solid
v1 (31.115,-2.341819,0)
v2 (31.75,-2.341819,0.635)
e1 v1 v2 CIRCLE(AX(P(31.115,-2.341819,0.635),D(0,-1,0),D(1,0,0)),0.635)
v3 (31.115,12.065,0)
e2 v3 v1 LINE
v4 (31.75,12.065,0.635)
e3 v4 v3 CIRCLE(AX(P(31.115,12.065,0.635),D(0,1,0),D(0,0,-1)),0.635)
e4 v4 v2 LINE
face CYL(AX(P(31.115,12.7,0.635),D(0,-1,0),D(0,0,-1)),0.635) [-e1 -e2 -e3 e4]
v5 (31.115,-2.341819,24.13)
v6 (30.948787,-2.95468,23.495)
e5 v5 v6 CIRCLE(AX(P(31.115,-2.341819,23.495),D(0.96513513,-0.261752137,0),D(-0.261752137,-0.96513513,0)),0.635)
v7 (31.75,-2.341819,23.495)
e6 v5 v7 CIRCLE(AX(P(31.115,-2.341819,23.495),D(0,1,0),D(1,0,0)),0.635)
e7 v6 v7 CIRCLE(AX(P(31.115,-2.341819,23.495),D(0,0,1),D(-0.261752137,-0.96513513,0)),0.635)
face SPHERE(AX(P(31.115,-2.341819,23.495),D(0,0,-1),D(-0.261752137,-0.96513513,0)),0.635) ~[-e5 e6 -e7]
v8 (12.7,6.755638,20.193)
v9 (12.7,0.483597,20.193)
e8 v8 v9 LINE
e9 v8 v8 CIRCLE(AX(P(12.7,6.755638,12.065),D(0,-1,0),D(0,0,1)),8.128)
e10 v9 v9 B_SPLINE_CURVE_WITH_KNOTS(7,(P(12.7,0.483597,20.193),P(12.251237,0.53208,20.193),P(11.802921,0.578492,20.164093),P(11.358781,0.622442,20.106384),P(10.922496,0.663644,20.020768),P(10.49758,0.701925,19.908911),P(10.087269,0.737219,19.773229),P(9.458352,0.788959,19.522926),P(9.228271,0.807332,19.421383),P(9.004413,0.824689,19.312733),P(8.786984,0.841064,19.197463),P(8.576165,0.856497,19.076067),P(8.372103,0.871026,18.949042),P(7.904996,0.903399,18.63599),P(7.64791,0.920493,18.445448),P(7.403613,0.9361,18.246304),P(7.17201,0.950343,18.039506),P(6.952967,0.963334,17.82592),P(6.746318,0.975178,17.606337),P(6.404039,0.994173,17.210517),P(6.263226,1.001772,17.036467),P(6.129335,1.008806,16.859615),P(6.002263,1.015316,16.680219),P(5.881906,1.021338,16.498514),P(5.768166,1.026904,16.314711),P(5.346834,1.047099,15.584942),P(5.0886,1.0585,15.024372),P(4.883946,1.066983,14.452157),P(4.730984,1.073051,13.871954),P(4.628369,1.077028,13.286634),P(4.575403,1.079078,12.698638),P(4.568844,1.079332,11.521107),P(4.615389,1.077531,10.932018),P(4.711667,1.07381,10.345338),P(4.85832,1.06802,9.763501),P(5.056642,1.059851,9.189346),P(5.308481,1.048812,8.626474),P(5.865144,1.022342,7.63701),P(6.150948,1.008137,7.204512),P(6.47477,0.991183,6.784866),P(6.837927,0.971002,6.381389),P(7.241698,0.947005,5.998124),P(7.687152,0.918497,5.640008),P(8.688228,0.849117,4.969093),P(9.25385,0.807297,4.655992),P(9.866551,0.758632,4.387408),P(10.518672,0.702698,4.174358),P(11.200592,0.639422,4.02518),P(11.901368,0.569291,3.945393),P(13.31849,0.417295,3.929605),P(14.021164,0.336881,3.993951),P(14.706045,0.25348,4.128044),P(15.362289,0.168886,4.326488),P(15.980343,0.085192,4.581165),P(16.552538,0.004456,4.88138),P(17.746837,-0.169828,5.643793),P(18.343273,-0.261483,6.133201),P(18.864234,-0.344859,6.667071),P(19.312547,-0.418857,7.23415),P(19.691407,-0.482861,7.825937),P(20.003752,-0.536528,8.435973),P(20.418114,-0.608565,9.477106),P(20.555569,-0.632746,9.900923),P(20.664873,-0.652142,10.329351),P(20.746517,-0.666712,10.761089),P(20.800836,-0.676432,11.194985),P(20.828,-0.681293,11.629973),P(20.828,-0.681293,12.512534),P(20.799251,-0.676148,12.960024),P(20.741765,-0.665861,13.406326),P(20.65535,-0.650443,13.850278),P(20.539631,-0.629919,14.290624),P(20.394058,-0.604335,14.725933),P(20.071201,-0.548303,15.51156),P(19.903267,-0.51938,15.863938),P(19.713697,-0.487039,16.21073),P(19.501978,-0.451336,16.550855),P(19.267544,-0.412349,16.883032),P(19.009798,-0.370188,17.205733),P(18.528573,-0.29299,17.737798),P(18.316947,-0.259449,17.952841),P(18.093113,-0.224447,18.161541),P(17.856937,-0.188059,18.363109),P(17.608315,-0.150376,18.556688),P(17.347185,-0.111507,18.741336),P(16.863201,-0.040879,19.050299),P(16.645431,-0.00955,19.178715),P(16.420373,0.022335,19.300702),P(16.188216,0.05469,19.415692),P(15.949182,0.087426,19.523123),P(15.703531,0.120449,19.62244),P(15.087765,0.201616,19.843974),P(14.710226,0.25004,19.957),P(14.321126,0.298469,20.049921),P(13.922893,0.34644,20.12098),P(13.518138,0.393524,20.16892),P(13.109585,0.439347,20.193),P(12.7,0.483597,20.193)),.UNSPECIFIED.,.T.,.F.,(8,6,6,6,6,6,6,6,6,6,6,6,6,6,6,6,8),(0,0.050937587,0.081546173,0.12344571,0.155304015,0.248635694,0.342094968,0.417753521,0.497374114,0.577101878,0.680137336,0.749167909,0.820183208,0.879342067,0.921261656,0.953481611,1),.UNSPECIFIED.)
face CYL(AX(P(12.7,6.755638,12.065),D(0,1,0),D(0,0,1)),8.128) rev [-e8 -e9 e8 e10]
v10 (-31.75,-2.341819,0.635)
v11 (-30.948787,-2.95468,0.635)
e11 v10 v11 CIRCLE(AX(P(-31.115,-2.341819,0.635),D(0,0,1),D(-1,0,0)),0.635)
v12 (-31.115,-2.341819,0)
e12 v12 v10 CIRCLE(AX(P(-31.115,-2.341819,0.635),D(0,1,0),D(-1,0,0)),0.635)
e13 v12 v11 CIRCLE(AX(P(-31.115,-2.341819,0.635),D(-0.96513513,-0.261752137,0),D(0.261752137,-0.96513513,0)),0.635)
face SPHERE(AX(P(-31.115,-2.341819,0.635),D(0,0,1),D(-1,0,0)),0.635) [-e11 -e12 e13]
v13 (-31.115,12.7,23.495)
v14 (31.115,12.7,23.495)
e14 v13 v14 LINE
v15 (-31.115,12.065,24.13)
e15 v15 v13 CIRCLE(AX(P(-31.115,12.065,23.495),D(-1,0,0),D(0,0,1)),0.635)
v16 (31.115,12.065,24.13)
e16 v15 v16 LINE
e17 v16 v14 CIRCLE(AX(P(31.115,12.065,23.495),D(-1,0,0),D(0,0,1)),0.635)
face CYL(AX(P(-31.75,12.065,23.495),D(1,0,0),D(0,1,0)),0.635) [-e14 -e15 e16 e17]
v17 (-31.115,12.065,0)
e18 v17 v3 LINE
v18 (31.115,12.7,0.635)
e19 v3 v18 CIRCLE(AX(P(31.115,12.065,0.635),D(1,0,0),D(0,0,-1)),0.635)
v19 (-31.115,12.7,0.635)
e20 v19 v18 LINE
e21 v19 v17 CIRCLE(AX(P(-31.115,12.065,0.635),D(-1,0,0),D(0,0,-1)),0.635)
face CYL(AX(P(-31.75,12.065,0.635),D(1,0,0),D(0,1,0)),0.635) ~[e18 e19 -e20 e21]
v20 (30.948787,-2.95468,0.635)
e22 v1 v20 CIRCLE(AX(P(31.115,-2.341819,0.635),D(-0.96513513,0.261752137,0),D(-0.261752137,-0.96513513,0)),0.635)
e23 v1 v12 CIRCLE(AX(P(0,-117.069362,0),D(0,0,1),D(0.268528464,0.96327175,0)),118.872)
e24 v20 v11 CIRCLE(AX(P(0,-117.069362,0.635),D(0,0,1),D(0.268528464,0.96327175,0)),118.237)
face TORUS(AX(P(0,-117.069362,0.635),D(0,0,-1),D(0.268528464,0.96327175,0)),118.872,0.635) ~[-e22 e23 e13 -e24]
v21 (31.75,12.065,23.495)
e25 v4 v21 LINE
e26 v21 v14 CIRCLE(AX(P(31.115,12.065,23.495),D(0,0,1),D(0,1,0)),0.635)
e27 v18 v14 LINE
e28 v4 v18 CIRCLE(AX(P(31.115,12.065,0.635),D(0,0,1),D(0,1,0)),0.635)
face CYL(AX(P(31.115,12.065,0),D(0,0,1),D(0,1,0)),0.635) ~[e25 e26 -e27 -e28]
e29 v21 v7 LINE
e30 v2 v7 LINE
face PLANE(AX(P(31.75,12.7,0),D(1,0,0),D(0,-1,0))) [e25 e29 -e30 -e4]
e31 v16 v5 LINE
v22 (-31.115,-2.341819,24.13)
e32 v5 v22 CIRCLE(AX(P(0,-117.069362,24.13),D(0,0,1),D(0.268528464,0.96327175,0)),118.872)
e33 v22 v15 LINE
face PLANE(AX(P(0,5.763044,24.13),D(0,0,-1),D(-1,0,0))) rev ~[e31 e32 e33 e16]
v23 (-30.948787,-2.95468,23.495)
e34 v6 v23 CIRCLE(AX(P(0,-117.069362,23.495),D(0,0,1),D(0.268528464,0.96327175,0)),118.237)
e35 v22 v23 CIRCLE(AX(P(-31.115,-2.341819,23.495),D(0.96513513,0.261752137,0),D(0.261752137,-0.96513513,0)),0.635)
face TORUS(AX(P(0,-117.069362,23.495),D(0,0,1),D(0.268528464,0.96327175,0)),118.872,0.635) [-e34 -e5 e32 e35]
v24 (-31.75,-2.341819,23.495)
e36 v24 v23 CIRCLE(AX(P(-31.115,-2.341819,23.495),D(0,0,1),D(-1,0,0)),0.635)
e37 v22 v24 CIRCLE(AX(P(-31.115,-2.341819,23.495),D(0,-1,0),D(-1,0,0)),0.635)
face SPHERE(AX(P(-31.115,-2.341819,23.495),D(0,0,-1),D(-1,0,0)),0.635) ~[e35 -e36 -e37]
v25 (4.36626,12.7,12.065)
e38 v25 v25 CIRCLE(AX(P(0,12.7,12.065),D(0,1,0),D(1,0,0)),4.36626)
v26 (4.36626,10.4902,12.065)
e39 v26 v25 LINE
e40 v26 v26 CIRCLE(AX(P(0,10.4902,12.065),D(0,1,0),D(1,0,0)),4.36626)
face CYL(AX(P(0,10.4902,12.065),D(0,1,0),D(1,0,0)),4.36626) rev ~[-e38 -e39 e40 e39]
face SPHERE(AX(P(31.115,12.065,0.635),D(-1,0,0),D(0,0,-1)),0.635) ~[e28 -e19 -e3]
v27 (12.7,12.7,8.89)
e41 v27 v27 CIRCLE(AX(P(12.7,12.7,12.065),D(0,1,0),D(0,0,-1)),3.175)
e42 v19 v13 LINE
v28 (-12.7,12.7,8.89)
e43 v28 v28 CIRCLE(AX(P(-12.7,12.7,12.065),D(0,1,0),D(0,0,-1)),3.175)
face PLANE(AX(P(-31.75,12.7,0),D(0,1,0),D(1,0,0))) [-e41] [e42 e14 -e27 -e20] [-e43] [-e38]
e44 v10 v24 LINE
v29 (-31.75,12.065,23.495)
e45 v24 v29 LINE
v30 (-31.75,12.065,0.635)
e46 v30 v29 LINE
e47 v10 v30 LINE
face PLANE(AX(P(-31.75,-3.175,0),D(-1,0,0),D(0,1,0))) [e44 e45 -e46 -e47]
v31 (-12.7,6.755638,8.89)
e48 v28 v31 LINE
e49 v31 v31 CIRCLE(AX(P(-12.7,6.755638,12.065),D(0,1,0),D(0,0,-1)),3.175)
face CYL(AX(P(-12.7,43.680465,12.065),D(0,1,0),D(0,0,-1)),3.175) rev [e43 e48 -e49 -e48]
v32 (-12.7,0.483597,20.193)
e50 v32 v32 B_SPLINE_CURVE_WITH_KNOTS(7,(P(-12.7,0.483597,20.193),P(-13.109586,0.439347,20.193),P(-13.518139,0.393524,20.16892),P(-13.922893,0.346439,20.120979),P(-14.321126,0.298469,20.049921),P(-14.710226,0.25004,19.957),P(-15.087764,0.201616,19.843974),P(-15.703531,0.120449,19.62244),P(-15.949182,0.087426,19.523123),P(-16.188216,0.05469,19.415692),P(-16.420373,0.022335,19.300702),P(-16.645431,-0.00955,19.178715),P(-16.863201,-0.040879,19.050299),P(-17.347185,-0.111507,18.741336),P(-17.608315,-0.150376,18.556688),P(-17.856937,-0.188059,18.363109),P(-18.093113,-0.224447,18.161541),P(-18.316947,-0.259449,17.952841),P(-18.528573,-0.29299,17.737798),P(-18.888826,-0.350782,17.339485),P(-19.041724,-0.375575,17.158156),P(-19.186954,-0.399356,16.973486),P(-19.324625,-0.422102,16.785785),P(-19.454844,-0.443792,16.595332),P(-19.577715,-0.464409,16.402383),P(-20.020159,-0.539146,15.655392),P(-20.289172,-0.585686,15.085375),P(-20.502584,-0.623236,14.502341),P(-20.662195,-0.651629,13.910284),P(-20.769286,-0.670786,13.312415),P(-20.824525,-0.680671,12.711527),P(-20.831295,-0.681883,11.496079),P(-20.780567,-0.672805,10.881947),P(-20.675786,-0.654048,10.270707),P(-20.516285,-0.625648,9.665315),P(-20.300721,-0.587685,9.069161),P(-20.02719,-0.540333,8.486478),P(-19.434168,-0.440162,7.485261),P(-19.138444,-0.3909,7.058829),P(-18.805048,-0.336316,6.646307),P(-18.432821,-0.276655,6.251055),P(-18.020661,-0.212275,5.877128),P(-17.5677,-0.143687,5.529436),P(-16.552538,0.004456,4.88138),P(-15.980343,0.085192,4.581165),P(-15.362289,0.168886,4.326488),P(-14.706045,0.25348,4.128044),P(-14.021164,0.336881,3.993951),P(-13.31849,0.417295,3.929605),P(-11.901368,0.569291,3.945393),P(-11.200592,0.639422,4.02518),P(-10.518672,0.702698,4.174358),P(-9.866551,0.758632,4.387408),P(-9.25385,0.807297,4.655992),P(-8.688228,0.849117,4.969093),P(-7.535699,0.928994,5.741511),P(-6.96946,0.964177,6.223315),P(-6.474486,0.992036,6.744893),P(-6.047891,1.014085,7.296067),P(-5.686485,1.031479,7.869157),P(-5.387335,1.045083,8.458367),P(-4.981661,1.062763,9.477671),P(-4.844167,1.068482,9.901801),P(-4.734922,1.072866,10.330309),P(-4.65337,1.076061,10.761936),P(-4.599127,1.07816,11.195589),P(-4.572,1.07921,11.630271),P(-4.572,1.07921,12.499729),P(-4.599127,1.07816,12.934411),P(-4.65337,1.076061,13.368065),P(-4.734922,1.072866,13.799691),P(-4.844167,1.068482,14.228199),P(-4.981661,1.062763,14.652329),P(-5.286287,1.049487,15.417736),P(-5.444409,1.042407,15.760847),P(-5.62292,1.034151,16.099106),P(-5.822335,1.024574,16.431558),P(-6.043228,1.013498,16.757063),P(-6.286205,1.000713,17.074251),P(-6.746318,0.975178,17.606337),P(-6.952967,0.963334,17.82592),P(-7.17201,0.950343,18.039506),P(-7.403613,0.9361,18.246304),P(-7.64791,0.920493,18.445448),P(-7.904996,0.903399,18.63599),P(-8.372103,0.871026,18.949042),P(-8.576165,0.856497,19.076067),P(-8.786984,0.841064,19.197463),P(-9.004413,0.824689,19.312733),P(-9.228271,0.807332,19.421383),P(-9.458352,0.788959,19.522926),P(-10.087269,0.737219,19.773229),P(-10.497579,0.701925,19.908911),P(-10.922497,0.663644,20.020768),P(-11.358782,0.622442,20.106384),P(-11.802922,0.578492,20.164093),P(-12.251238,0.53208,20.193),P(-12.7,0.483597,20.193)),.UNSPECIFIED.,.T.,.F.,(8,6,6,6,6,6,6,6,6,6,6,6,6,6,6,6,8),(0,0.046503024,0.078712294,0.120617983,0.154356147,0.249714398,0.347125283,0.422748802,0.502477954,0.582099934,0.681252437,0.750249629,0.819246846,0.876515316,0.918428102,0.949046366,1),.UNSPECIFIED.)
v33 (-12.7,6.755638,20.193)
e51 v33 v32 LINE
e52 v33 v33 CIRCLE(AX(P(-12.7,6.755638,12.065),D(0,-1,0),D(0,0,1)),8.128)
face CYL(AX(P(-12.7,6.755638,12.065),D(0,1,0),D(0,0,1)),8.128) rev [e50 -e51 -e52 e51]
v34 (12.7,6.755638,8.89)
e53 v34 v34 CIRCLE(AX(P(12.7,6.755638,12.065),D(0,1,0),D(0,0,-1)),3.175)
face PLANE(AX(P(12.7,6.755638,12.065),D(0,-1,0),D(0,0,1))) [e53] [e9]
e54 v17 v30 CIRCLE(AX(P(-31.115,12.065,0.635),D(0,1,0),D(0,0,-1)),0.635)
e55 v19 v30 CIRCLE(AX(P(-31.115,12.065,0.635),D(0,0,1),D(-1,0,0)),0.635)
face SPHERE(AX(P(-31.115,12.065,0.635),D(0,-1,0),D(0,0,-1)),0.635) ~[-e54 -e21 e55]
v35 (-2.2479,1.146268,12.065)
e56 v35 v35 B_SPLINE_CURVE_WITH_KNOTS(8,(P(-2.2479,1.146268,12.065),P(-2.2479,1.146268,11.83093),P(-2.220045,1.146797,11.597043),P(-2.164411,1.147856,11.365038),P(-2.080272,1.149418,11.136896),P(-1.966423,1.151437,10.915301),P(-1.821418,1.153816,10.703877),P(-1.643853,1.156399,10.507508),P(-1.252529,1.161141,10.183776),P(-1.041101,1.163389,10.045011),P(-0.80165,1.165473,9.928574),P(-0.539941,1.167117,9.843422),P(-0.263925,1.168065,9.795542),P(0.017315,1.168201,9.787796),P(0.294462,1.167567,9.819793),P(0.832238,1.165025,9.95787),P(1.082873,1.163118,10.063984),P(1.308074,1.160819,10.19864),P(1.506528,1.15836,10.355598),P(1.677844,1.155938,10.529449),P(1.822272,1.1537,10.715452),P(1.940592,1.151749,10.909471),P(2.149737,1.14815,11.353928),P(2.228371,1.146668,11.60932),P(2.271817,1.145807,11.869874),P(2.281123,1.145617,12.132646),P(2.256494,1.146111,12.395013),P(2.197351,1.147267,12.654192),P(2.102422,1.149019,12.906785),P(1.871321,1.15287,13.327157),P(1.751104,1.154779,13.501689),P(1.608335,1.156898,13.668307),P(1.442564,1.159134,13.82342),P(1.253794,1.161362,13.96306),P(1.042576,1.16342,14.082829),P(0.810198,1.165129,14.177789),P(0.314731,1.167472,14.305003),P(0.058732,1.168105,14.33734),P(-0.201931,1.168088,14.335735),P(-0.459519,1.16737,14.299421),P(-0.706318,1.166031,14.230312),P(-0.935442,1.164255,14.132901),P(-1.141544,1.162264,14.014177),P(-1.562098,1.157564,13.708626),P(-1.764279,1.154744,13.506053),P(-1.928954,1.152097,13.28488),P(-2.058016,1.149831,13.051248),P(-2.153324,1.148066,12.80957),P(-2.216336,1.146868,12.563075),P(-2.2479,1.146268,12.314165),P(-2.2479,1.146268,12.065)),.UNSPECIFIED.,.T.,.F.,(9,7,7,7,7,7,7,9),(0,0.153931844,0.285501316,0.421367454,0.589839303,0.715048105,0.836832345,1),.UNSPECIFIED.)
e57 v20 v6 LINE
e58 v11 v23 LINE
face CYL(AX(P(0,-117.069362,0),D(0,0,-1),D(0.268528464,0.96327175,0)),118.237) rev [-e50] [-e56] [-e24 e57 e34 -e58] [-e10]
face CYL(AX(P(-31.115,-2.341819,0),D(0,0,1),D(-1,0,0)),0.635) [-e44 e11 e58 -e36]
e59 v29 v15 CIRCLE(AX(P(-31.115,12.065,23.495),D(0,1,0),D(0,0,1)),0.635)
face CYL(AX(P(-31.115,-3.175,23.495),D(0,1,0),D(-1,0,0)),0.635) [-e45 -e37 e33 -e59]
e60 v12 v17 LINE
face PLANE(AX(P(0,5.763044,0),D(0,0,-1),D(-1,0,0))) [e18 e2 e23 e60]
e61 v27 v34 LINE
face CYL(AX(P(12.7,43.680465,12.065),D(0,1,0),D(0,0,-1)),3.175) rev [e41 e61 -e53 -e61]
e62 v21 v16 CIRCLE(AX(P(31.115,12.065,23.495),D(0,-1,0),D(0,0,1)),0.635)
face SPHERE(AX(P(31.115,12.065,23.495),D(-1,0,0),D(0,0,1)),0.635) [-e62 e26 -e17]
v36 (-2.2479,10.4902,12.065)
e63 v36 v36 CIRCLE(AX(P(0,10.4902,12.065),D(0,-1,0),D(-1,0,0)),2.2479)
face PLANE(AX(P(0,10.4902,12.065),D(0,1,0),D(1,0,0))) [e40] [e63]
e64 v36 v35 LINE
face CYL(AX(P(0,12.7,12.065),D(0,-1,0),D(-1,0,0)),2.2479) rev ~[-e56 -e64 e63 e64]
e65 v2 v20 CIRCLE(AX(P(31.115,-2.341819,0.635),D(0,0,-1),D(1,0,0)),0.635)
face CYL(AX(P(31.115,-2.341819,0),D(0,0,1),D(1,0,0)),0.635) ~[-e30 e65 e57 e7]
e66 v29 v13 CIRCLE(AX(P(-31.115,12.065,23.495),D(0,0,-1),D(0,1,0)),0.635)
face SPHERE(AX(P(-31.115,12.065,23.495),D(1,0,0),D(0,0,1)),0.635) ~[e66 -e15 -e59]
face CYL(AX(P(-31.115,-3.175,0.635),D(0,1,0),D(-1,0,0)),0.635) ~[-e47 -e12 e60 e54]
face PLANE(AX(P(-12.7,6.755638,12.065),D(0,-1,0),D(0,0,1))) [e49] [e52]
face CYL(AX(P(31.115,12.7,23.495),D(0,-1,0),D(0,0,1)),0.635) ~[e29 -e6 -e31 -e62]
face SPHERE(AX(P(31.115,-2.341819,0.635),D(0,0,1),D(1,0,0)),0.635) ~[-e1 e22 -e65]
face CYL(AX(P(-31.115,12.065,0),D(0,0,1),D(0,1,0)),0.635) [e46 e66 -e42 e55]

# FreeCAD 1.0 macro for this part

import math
import FreeCAD as App
import Part
import Sketcher
Q = App.Units.Quantity


def edges_at(feature, points):
    """Names of the edges that pass closest to the given points."""
    edges = feature.Shape.Edges
    near = lambda p: min(range(len(edges)), key=lambda i: edges[i].distToShape(Part.Vertex(*p))[0])
    return sorted({f"Edge{near(p) + 1}" for p in points})

doc = App.newDocument("Part")
body = doc.addObject("PartDesign::Body", "Body")

# Sketch on XY plane
sketch1 = body.newObject("Sketcher::SketchObject", "Sketch")
sketch1.AttachmentSupport = (doc.getObject("XY_Plane"), [""])
sketch1.MapMode = "FlatFace"
sketch1.addGeometry([
    Part.LineSegment(App.Vector(32, 13, 0), App.Vector(-32, 13, 0)),
    Part.LineSegment(App.Vector(-32, 13, 0), App.Vector(-32, -3, 0)),
    Part.ArcOfCircle(Part.Circle(App.Vector(0, -117, 0), App.Vector(0, 0, 1), 118), math.radians(74), math.radians(106)),
    Part.LineSegment(App.Vector(32, -3, 0), App.Vector(32, 13, 0)),
], False)
sketch1.addConstraint([
    Sketcher.Constraint("Coincident", 0, 2, 1, 1),
    Sketcher.Constraint("Coincident", 1, 2, 2, 2),
    Sketcher.Constraint("Coincident", 2, 1, 3, 1),
    Sketcher.Constraint("Coincident", 3, 2, 0, 1),
    Sketcher.Constraint("Horizontal", 0),
    Sketcher.Constraint("Vertical", 1),
    Sketcher.Constraint("Vertical", 3),
    Sketcher.Constraint("Symmetric", 1, 2, 2, 1, -2),
    Sketcher.Constraint("DistanceX", 0, 2, 0, 1, Q("2.5 in")),
    Sketcher.Constraint("Radius", 2, Q("4.655 in")),
    Sketcher.Constraint("DistanceY", -1, 1, 0, 2, Q("0.5 in")),
    Sketcher.Constraint("DistanceY", 1, 2, 1, 1, Q("0.625 in")),
])
pad1 = body.newObject("PartDesign::Pad", "Pad")
pad1.Profile = sketch1
pad1.Length = Q("0.95 in")

# Sketch on XZ plane
sketch2 = body.newObject("Sketcher::SketchObject", "Sketch001")
sketch2.AttachmentSupport = (doc.getObject("XZ_Plane"), [""])
sketch2.MapMode = "FlatFace"
sketch2.AttachmentOffset = App.Placement(App.Vector(0, 0, -0.5 * 25.4), App.Rotation())
sketch2.addGeometry(Part.Circle(App.Vector(0, 12.1, 0), App.Vector(0, 0, 1), 2.2), False)
sketch2.addConstraint([
    Sketcher.Constraint("PointOnObject", 0, 3, -2),
    Sketcher.Constraint("Diameter", 0, Q("0.177 in")),
    Sketcher.Constraint("DistanceY", -1, 1, 0, 3, Q("0.475 in")),
])
doc.recompute()
hole = body.newObject("PartDesign::Hole", "Hole")
hole.Profile = sketch2
hole.ThreadType = "None"
hole.Diameter = Q("0.177 in")
hole.DepthType = "ThroughAll"
hole.HoleCutType = "Counterbore"
hole.HoleCutDiameter = Q("0.3438 in")
hole.HoleCutDepth = Q("0.087 in")
hole.Reversed = True

# Sketch on XZ plane
sketch3 = body.newObject("Sketcher::SketchObject", "Sketch002")
sketch3.AttachmentSupport = (doc.getObject("XZ_Plane"), [""])
sketch3.MapMode = "FlatFace"
sketch3.AttachmentOffset = App.Placement(App.Vector(0, 0, -1.167638), App.Rotation())
sketch3.addGeometry([
    Part.Circle(App.Vector(-12.7, 12.1, 0), App.Vector(0, 0, 1), 3.2),
    Part.Circle(App.Vector(12.7, 12.1, 0), App.Vector(0, 0, 1), 3.2),
], False)
sketch3.addConstraint([
    Sketcher.Constraint("Equal", 0, 1),
    Sketcher.Constraint("Symmetric", 0, 3, 1, 3, -2),
    Sketcher.Constraint("Diameter", 0, Q("0.25 in")),
    Sketcher.Constraint("DistanceX", 0, 3, 1, 3, Q("1 in")),
    Sketcher.Constraint("DistanceY", -1, 1, 0, 3, Q("0.475 in")),
])
pocket1 = body.newObject("PartDesign::Pocket", "Pocket")
pocket1.Profile = sketch3
pocket1.Type = "ThroughAll"
pocket1.Midplane = True

# Sketch on XZ plane
sketch4 = body.newObject("Sketcher::SketchObject", "Sketch003")
sketch4.AttachmentSupport = (doc.getObject("XZ_Plane"), [""])
sketch4.MapMode = "FlatFace"
sketch4.AttachmentOffset = App.Placement(App.Vector(0, 0, -1.167638), App.Rotation())
sketch4.addGeometry([
    Part.Circle(App.Vector(-13, 12, 0), App.Vector(0, 0, 1), 8),
    Part.Circle(App.Vector(13, 12, 0), App.Vector(0, 0, 1), 8),
], False)
sketch4.addConstraint([
    Sketcher.Constraint("Equal", 0, 1),
    Sketcher.Constraint("Symmetric", 0, 3, 1, 3, -2),
    Sketcher.Constraint("Diameter", 0, Q("0.64 in")),
    Sketcher.Constraint("DistanceX", 0, 3, 1, 3, Q("1 in")),
    Sketcher.Constraint("DistanceY", -1, 1, 0, 3, Q("0.475 in")),
])
pocket2 = body.newObject("PartDesign::Pocket", "Pocket001")
pocket2.Profile = sketch4
pocket2.Type = "TwoLengths"
pocket2.Length = 42.512827
pocket2.Length2 = Q("0.22 in")
pocket2.Reversed = True
doc.recompute()

fillet = body.newObject("PartDesign::Fillet", "Fillet")
fillet.Base = (pocket2, edges_at(pocket2, [
    (0, 12.7, 24.13),
    (-31.75, 4.763, 24.13),
    (0, 1.168, 24.13),
    (-31.75, 4.763, 0),
    (0, 12.7, 0),
    (31.75, 4.763, 0),
    (0, 1.168, 0),
    (31.75, 4.763, 24.13),
    (-31.75, -3.175, 12.065),
    (-31.75, 12.7, 12.065),
    (31.75, 12.7, 12.065),
    (31.75, -3.175, 12.065),
]))
fillet.Radius = Q("0.025 in")

doc.recompute()
